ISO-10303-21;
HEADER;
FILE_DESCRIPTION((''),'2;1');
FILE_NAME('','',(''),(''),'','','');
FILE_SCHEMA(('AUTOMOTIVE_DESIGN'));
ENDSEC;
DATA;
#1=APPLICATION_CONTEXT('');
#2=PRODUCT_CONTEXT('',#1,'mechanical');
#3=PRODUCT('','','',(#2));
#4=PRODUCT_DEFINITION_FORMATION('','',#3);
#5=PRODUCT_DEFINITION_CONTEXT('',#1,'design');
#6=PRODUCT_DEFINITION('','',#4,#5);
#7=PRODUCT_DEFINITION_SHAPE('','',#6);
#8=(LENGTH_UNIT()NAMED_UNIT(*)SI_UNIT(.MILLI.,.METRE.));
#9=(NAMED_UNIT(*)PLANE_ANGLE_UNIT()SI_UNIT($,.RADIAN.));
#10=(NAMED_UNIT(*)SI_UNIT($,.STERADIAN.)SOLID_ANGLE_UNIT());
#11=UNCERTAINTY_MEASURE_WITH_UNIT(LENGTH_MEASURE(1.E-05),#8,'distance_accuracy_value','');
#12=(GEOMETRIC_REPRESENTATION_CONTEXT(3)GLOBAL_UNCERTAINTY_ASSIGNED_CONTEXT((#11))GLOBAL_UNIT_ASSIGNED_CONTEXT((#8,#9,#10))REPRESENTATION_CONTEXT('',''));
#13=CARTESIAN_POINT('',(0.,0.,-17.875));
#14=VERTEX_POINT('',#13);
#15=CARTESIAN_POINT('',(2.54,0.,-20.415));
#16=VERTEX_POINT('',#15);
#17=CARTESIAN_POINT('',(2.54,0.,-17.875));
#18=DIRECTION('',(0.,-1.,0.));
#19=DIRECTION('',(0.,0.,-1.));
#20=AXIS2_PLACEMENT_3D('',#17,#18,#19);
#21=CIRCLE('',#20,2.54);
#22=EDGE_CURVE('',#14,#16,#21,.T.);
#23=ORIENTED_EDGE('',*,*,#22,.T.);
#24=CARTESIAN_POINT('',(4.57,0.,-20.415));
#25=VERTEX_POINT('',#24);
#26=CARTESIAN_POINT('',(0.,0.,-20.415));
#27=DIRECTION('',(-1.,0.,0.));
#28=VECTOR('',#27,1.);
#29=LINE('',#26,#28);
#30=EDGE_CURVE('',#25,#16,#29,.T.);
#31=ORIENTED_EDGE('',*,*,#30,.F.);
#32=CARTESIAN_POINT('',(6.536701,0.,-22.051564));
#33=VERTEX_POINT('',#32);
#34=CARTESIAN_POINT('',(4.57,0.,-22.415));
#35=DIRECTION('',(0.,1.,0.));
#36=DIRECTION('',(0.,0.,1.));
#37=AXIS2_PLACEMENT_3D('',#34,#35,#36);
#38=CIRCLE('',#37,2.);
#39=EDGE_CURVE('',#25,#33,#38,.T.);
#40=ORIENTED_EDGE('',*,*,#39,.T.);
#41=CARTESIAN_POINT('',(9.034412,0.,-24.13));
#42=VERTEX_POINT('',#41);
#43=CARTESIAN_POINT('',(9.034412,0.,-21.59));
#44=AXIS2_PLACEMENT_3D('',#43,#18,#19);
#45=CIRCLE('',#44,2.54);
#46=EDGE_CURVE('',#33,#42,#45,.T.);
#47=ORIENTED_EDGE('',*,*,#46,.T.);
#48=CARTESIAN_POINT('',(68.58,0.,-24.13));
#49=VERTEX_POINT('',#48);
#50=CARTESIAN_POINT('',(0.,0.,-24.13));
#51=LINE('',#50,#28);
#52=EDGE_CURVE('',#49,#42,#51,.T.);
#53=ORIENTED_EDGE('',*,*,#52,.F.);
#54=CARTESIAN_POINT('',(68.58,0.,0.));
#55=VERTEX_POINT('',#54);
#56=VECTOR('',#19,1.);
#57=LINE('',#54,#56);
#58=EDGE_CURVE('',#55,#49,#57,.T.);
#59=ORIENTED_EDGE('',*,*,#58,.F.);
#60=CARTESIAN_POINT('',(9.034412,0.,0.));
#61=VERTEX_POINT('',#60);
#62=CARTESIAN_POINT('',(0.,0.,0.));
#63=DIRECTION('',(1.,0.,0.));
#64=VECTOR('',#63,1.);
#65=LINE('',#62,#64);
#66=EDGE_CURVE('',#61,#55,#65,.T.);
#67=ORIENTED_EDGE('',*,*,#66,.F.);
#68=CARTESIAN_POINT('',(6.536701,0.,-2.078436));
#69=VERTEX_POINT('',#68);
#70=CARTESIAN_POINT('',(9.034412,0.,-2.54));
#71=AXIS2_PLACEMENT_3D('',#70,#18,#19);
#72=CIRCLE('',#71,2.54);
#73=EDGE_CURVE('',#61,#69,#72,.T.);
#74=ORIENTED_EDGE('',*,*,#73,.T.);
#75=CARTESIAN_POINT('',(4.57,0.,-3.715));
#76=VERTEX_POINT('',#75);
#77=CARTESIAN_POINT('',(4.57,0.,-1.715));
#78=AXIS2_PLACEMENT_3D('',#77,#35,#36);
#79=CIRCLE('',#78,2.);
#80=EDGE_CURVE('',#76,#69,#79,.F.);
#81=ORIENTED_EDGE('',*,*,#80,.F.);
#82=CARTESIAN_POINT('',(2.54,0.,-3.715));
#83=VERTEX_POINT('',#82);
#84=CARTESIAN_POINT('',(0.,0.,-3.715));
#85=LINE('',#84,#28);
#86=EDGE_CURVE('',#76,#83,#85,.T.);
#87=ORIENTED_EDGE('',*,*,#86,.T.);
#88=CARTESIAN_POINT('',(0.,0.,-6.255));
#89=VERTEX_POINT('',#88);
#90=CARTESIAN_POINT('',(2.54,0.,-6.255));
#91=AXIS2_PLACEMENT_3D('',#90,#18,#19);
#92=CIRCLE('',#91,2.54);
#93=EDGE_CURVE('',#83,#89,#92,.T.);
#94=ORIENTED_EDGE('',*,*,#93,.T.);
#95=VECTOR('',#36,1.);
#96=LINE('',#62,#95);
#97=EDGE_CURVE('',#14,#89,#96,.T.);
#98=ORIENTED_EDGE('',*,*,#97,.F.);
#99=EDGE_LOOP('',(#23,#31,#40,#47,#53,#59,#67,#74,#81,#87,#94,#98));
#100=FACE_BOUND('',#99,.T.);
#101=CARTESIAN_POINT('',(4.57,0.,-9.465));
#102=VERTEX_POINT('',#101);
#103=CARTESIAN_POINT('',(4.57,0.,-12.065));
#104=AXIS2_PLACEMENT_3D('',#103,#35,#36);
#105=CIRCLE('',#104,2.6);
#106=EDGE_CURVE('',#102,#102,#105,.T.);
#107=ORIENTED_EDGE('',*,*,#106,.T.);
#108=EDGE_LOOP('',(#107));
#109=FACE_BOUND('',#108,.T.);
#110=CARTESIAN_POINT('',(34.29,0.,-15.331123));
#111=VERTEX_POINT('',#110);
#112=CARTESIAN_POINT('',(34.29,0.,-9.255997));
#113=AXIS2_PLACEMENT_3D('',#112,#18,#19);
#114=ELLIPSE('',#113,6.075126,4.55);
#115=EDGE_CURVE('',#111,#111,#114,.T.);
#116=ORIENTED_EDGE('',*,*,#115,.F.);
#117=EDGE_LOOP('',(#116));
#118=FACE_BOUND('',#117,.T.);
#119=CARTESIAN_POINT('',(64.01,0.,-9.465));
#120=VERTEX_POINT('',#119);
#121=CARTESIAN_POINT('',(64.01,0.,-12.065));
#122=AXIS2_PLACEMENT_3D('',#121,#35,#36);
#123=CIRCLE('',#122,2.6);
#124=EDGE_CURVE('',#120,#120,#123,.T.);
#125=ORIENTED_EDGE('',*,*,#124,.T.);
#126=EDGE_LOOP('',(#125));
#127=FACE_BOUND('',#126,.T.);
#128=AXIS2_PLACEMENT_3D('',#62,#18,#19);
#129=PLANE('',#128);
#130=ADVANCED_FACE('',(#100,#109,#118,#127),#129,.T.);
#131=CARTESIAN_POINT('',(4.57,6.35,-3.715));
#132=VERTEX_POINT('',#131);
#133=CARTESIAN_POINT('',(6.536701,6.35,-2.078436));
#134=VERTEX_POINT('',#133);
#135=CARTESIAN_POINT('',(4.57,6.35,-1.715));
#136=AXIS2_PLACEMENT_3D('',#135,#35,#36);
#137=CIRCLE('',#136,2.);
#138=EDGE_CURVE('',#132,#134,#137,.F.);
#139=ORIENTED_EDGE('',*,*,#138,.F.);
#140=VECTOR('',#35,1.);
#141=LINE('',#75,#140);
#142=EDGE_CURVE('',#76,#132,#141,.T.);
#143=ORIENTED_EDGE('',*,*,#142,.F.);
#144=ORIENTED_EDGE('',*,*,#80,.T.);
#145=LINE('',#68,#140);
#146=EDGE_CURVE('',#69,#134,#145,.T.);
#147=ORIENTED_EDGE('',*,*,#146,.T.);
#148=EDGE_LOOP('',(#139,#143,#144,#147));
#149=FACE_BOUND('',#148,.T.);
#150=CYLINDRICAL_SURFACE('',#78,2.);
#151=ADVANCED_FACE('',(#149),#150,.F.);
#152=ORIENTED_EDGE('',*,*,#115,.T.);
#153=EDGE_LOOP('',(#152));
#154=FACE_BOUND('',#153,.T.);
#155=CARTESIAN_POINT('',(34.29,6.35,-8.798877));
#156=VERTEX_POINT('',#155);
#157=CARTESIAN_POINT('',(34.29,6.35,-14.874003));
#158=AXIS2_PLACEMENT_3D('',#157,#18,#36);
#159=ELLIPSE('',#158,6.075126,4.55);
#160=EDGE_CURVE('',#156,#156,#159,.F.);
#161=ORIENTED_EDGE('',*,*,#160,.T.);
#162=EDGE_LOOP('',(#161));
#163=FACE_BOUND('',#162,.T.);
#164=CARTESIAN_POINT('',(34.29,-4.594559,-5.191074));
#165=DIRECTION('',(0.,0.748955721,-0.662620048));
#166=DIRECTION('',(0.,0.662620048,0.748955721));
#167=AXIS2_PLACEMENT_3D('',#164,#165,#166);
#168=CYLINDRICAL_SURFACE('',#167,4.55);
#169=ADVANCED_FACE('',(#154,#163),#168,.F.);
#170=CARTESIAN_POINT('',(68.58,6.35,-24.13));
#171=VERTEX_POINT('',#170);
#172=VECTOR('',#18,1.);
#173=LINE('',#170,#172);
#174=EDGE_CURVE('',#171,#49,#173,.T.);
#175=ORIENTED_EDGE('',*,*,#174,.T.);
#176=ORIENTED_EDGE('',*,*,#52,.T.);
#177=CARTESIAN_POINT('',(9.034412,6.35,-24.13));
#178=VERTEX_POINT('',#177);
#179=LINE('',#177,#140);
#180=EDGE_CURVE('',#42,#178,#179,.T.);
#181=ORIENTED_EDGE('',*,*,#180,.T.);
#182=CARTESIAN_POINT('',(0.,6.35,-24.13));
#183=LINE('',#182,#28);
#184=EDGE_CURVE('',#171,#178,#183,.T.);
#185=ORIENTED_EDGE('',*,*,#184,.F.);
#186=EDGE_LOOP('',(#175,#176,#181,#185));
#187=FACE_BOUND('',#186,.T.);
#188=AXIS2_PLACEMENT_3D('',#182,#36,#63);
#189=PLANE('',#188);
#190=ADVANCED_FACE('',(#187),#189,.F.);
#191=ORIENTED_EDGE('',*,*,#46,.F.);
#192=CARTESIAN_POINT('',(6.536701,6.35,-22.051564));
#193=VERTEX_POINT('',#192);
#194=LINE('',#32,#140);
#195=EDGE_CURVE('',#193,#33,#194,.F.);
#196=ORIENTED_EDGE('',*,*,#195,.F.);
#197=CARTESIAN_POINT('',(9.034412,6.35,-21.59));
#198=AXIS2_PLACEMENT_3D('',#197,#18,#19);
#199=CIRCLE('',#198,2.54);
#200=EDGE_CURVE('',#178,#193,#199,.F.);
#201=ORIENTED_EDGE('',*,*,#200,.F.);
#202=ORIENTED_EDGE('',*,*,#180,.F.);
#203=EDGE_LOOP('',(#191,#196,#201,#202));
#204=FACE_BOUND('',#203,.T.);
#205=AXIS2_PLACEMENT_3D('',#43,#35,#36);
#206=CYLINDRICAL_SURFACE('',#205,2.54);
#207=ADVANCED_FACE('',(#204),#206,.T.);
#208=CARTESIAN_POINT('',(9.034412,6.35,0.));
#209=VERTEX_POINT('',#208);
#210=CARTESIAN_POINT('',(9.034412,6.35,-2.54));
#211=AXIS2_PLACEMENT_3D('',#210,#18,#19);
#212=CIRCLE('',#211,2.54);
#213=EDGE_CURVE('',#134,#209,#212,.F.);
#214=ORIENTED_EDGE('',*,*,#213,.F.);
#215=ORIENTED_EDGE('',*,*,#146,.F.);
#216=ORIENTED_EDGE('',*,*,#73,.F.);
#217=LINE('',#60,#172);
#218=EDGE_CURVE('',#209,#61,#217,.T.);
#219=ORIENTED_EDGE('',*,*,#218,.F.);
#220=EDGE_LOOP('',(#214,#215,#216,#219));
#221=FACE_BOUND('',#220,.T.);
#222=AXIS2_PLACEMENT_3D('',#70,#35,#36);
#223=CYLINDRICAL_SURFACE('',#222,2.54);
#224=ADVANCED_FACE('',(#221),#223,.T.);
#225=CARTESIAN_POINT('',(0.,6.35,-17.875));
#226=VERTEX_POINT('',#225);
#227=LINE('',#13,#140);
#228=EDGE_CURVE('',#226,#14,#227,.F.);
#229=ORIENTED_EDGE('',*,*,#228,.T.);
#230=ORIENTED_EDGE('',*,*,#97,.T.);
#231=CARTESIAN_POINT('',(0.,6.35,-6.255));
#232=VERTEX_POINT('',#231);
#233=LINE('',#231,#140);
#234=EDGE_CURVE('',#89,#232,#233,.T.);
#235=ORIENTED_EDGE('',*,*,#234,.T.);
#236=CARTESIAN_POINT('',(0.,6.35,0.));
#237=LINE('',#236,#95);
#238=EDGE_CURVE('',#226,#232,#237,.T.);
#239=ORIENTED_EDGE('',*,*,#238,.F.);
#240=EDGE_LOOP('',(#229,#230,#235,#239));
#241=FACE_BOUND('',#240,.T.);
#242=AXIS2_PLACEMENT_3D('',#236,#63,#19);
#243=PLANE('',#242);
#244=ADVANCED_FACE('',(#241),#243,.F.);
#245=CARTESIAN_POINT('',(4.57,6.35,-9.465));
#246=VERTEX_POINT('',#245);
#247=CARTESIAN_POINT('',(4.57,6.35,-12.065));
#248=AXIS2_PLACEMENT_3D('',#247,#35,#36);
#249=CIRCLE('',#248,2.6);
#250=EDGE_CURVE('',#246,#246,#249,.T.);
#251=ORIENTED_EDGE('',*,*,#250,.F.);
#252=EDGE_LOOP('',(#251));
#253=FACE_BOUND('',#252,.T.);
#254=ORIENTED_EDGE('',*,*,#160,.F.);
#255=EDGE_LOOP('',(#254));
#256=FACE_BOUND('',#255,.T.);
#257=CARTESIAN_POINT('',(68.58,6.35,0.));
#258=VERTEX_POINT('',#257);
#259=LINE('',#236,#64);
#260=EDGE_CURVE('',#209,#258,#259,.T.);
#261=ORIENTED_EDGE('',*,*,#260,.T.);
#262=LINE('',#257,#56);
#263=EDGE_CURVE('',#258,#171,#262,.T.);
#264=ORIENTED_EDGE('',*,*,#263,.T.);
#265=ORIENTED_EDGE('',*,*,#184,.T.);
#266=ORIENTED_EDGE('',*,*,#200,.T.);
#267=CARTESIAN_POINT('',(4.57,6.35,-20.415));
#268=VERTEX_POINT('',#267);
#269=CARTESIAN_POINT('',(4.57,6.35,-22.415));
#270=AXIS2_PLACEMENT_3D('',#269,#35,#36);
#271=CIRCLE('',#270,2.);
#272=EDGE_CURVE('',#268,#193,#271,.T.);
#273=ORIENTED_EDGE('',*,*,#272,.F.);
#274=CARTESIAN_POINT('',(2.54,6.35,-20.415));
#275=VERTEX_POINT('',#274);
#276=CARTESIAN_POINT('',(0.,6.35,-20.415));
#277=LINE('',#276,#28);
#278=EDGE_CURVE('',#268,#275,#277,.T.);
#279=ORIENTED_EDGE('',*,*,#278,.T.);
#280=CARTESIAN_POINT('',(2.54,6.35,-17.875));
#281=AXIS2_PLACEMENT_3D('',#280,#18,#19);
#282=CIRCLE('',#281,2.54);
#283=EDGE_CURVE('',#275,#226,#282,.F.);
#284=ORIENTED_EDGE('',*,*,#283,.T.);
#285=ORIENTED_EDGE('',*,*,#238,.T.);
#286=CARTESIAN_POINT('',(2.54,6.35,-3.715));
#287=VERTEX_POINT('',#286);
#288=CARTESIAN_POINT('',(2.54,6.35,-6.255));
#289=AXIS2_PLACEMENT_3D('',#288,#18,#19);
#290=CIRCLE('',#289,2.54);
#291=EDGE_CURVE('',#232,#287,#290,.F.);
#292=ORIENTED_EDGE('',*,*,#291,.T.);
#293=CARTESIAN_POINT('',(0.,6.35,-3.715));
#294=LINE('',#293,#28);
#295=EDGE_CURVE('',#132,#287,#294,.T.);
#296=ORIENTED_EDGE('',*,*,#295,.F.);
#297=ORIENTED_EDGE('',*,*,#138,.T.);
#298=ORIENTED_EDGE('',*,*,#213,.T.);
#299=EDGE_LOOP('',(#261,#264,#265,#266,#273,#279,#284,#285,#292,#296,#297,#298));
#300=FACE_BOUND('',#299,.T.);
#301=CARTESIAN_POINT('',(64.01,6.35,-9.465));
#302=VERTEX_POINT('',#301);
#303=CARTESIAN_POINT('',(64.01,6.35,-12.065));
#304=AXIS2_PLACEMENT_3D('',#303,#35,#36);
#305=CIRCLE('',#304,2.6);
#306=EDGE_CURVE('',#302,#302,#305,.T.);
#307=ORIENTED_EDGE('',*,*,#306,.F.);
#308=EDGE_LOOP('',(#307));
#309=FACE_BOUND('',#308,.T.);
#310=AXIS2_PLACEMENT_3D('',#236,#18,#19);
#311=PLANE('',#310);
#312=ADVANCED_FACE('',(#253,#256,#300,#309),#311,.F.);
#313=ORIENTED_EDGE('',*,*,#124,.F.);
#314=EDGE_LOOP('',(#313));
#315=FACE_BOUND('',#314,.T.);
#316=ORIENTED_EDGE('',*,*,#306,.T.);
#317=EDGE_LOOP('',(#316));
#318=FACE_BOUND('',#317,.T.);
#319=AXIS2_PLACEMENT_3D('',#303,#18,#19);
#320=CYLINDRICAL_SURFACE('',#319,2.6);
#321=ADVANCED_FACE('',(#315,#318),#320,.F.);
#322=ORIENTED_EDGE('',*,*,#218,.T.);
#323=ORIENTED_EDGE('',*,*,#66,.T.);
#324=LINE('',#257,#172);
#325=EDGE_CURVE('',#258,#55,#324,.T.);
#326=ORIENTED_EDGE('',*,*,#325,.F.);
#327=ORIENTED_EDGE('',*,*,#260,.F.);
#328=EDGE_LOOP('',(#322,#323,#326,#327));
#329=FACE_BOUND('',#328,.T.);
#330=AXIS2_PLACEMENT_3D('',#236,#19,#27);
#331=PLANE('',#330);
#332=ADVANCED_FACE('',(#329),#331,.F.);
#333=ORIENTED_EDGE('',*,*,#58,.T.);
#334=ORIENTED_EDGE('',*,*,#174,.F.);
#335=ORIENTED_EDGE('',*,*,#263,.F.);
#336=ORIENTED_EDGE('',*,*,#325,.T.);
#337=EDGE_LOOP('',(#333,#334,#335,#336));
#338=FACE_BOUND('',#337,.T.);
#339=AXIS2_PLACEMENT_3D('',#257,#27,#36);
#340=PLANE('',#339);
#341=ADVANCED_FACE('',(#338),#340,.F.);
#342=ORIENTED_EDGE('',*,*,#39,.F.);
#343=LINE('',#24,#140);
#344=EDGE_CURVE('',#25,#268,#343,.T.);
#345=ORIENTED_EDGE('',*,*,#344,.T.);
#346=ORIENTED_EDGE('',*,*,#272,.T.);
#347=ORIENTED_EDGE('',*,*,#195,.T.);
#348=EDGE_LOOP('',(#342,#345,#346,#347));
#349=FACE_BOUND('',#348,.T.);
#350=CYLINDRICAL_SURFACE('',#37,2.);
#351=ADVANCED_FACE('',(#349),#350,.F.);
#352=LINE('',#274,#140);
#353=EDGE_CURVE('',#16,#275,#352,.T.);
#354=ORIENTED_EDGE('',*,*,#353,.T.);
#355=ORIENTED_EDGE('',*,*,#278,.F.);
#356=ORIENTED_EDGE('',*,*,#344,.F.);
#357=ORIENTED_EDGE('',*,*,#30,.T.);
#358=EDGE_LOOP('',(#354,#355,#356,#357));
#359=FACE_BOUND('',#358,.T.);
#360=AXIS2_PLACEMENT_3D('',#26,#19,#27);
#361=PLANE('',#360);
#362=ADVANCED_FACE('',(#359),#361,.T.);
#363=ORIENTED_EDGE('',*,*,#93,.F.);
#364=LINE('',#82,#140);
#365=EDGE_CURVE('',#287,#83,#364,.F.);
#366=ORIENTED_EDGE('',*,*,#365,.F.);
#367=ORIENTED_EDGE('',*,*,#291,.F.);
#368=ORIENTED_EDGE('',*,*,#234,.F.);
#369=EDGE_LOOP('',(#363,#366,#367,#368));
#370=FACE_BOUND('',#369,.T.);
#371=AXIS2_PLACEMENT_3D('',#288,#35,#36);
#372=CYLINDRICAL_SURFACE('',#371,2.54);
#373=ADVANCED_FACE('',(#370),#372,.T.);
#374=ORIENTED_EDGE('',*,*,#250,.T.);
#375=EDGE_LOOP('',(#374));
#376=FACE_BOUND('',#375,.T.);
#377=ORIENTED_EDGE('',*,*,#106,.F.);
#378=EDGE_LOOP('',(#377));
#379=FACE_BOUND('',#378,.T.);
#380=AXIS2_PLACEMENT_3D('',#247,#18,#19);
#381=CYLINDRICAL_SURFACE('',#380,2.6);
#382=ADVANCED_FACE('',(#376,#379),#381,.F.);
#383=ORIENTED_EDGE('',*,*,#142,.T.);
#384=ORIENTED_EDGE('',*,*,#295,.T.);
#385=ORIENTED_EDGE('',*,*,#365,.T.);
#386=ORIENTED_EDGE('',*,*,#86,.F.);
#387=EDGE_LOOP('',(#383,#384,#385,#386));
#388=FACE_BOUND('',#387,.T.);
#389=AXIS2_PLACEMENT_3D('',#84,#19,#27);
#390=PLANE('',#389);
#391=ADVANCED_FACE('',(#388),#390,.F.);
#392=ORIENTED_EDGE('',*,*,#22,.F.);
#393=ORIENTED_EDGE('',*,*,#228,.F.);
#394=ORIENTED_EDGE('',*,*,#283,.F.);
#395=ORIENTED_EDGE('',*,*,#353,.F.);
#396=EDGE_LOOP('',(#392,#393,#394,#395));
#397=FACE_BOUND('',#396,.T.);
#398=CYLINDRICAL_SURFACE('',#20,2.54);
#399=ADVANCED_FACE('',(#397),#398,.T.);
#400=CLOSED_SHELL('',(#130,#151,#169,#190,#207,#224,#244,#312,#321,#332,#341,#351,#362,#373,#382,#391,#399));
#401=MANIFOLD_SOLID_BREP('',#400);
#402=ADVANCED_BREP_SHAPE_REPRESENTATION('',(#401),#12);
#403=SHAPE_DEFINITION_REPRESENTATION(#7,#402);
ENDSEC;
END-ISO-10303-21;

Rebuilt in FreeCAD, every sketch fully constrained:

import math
import FreeCAD as App
import Part
import Sketcher
from FreeCAD import Vector
Q = App.Units.Quantity


def edges_at(feature, points):
    """Names of the edges that pass closest to the given points."""
    edges = feature.Shape.Edges
    near = lambda p: min(range(len(edges)), key=lambda i: edges[i].distToShape(Part.Vertex(*p))[0])
    return sorted({f"Edge{near(p) + 1}" for p in points})


def add_polygon(sketch, points):
    """Adds a closed chain of lines whose ends are joined by coincident constraints."""
    first, n = sketch.GeometryCount, len(points)
    for a, b in zip(points, points[1:] + points[:1]):
        sketch.addGeometry(Part.LineSegment(App.Vector(*a, 0), App.Vector(*b, 0)), False)
    for i in range(n):
        sketch.addConstraint(Sketcher.Constraint("Coincident", first + i, 2, first + (i + 1) % n, 1))

doc = App.newDocument("Part")
body = doc.addObject("PartDesign::Body", "Body")

sketch1 = body.newObject("Sketcher::SketchObject", "Sketch")
sketch1.AttachmentSupport = (doc.getObject("XZ_Plane"), [""])
sketch1.MapMode = "FlatFace"
add_polygon(sketch1, [(0, -24.1), (0, 0), (68.6, 0), (68.6, -24.1)])
sketch1.addGeometry(Part.Circle(Vector(4.6, -12.1, 0), Vector(0, 0, 1), 2.6), False)
sketch1.addGeometry(Part.Circle(Vector(64, -12.1, 0), Vector(0, 0, 1), 2.6), False)
sketch1.addConstraint(Sketcher.Constraint("Vertical", 0))
sketch1.addConstraint(Sketcher.Constraint("Horizontal", 1))
sketch1.addConstraint(Sketcher.Constraint("Vertical", 2))
sketch1.addConstraint(Sketcher.Constraint("Horizontal", 3))
sketch1.addConstraint(Sketcher.Constraint("Coincident", 0, 2, -1, 1))
sketch1.addConstraint(Sketcher.Constraint("Equal", 4, 5))
sketch1.addConstraint(Sketcher.Constraint("Horizontal", 4, 3, 5, 3))
sketch1.addConstraint(Sketcher.Constraint("DistanceX", 1, 1, 1, 2, Q("2.7 in")))
sketch1.addConstraint(Sketcher.Constraint("DistanceY", 0, 1, 0, 2, Q("0.95 in")))
sketch1.addConstraint(Sketcher.Constraint("Diameter", 4, 5.2))
sketch1.addConstraint(Sketcher.Constraint("DistanceY", 4, 3, -1, 1, Q("0.475 in")))
sketch1.addConstraint(Sketcher.Constraint("DistanceX", -1, 1, 4, 3, 4.57))
sketch1.addConstraint(Sketcher.Constraint("DistanceX", -1, 1, 5, 3, 64.01))
pad1 = body.newObject("PartDesign::Pad", "Pad")
pad1.Profile = sketch1
pad1.Length = Q("0.25 in")
pad1.Reversed = True

sketch2 = body.newObject("Sketcher::SketchObject", "Sketch001")
sketch2.AttachmentSupport = (doc.getObject("XZ_Plane"), [""])
sketch2.MapMode = "FlatFace"
sketch2.AttachmentOffset = App.Placement(Vector(0, 0, -0.25 * 25.4), App.Rotation())
sketch2.addGeometry(Part.LineSegment(Vector(4.6, -3.7, 0), Vector(0, -3.7, 0)), False)
sketch2.addGeometry(Part.LineSegment(Vector(0, -3.7, 0), Vector(0, 0, 0)), False)
sketch2.addGeometry(Part.LineSegment(Vector(0, 0, 0), Vector(6.6, 0, 0)), False)
sketch2.addGeometry(Part.LineSegment(Vector(6.6, 0, 0), Vector(6.6, -1.7, 0)), False)
sketch2.addGeometry(Part.ArcOfCircle(Part.Circle(Vector(4.6, -1.7, 0), Vector(0, 0, 1), 2), math.radians(-90), math.radians(0)), False)
sketch2.addGeometry(Part.ArcOfCircle(Part.Circle(Vector(4.6, -22.4, 0), Vector(0, 0, 1), 2), math.radians(0), math.radians(90)), False)
sketch2.addGeometry(Part.LineSegment(Vector(6.6, -22.4, 0), Vector(6.6, -24.1, 0)), False)
sketch2.addGeometry(Part.LineSegment(Vector(6.6, -24.1, 0), Vector(0, -24.1, 0)), False)
sketch2.addGeometry(Part.LineSegment(Vector(0, -24.1, 0), Vector(0, -20.4, 0)), False)
sketch2.addGeometry(Part.LineSegment(Vector(0, -20.4, 0), Vector(4.6, -20.4, 0)), False)
sketch2.addConstraint(Sketcher.Constraint("Coincident", 0, 2, 1, 1))
sketch2.addConstraint(Sketcher.Constraint("Coincident", 1, 2, 2, 1))
sketch2.addConstraint(Sketcher.Constraint("Coincident", 2, 2, 3, 1))
sketch2.addConstraint(Sketcher.Constraint("Tangent", 3, 2, 4, 2))
sketch2.addConstraint(Sketcher.Constraint("Tangent", 4, 1, 0, 1))
sketch2.addConstraint(Sketcher.Constraint("Tangent", 5, 1, 6, 1))
sketch2.addConstraint(Sketcher.Constraint("Coincident", 6, 2, 7, 1))
sketch2.addConstraint(Sketcher.Constraint("Coincident", 7, 2, 8, 1))
sketch2.addConstraint(Sketcher.Constraint("Coincident", 8, 2, 9, 1))
sketch2.addConstraint(Sketcher.Constraint("Tangent", 9, 2, 5, 2))
sketch2.addConstraint(Sketcher.Constraint("Horizontal", 0))
sketch2.addConstraint(Sketcher.Constraint("Vertical", 1))
sketch2.addConstraint(Sketcher.Constraint("Horizontal", 2))
sketch2.addConstraint(Sketcher.Constraint("Vertical", 3))
sketch2.addConstraint(Sketcher.Constraint("Vertical", 6))
sketch2.addConstraint(Sketcher.Constraint("Horizontal", 7))
sketch2.addConstraint(Sketcher.Constraint("Vertical", 8))
sketch2.addConstraint(Sketcher.Constraint("Horizontal", 9))
sketch2.addConstraint(Sketcher.Constraint("Coincident", 1, 2, -1, 1))
sketch2.addConstraint(Sketcher.Constraint("Equal", 4, 5))
sketch2.addConstraint(Sketcher.Constraint("PointOnObject", 7, 2, -2))
sketch2.addConstraint(Sketcher.Constraint("Vertical", 4, 3, 5, 3))
sketch2.addConstraint(Sketcher.Constraint("Equal", 3, 6))
sketch2.addConstraint(Sketcher.Constraint("DistanceY", 6, 2, -1, 1, Q("0.95 in")))
sketch2.addConstraint(Sketcher.Constraint("Radius", 4, 2.0))
sketch2.addConstraint(Sketcher.Constraint("DistanceX", 0, 2, 0, 1, 4.57))
sketch2.addConstraint(Sketcher.Constraint("DistanceY", 1, 1, 1, 2, 3.715))
pocket1 = body.newObject("PartDesign::Pocket", "Pocket")
pocket1.Profile = sketch2
pocket1.Type = "ThroughAll"
pocket1.Reversed = True
doc.recompute()

fillet = body.newObject("PartDesign::Fillet", "Fillet")
fillet.Base = (pocket1, edges_at(pocket1, [
    (6.57, 3.175, 0),
    (0, 3.175, -3.715),
    (0, 3.175, -20.415),
    (6.57, 3.175, -24.13),
]))
fillet.Radius = Q("0.1 in")

sketch3 = body.newObject("Sketcher::SketchObject", "Sketch002")
sketch3.Placement = App.Placement(Vector(0, 7.768502, -6.87299), App.Rotation(Vector(-1, 0, 0), Vector(0, -0.662620048, -0.748955721), Vector(0, -0.748955721, 0.662620048), "ZXY"))
sketch3.addGeometry(Part.Circle(Vector(-34.3, 6.9, 0), Vector(0, 0, 1), 4.5), False)
sketch3.addConstraint(Sketcher.Constraint("Diameter", 0, 9.1))
sketch3.addConstraint(Sketcher.Constraint("DistanceX", 0, 3, -1, 1, Q("1.35 in")))
sketch3.addConstraint(Sketcher.Constraint("DistanceY", -1, 1, 0, 3, 6.932332))
pocket2 = body.newObject("PartDesign::Pocket", "Pocket001")
pocket2.Profile = sketch3
pocket2.Type = "UpToFirst"

sketch4 = body.newObject("Sketcher::SketchObject", "Sketch003")
sketch4.Placement = App.Placement(Vector(0, 7.768502, -6.87299), App.Rotation(Vector(-1, 0, 0), Vector(0, -0.662620048, -0.748955721), Vector(0, -0.748955721, 0.662620048), "ZXY"))
sketch4.addGeometry(Part.Circle(Vector(-34.3, 6.9, 0), Vector(0, 0, 1), 4.5), False)
sketch4.addConstraint(Sketcher.Constraint("Diameter", 0, 9.1))
sketch4.addConstraint(Sketcher.Constraint("DistanceX", 0, 3, -1, 1, Q("1.35 in")))
sketch4.addConstraint(Sketcher.Constraint("DistanceY", -1, 1, 0, 3, 6.932332))
pocket3 = body.newObject("PartDesign::Pocket", "Pocket002")
pocket3.Profile = sketch4
pocket3.Type = "UpToFirst"
pocket3.Reversed = True

doc.recompute()
